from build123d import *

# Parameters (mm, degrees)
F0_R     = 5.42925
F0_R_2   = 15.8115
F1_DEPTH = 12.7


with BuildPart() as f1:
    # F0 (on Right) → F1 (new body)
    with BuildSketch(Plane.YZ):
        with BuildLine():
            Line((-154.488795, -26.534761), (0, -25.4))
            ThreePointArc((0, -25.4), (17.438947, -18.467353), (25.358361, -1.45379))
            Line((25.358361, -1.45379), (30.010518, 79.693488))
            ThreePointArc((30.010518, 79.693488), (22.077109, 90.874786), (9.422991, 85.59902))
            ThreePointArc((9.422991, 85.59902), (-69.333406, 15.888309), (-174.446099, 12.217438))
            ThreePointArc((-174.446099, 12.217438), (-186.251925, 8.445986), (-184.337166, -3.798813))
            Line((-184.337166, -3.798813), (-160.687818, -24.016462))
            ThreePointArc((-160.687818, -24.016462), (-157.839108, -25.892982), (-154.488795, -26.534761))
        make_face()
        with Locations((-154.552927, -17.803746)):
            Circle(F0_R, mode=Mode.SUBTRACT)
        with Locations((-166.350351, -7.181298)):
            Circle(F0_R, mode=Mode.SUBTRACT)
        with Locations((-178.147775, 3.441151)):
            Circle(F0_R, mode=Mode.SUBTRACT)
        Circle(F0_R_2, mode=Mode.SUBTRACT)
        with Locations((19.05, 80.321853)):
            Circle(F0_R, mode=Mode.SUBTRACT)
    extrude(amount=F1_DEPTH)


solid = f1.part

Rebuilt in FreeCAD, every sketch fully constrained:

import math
import FreeCAD as App
import Part
import Sketcher

V = App.Vector
Q = App.Units.Quantity

doc = App.newDocument("Part")
body = doc.addObject("PartDesign::Body", "Body")

# Sketch on YZ plane
sketch1 = body.newObject("Sketcher::SketchObject", "Sketch")
sketch1.AttachmentSupport = (doc.getObject("YZ_Plane"), [""])
sketch1.MapMode = "FlatFace"
sketch1.addGeometry(Part.LineSegment(V(-154.488795, -26.534761, 0), V(0, -25.4, 0)), False)
sketch1.addGeometry(Part.ArcOfCircle(Part.Circle(V(0, -0.000001, 0), V(0, 0, 1), 25.399999), math.radians(-90.000001), math.radians(-3.281163)), False)
sketch1.addGeometry(Part.LineSegment(V(25.358361, -1.45379, 0), V(30.010518, 79.693488, 0)), False)
sketch1.addGeometry(Part.ArcOfCircle(Part.Circle(V(19.05, 80.321852, 0), V(0, 0, 1), 10.978515), math.radians(-3.281164), math.radians(151.270088)), False)
sketch1.addGeometry(Part.ArcOfCircle(Part.Circle(V(-126.999999, 160.381022, 0), V(0, 0, 1), 155.574998), math.radians(-107.756511), math.radians(-28.729912)), False)
sketch1.addGeometry(Part.ArcOfCircle(Part.Circle(V(-178.147775, 3.44115, 0), V(0, 0, 1), 9.525), math.radians(67.130883), math.radians(229.473112)), False)
sketch1.addGeometry(Part.LineSegment(V(-184.337166, -3.798813, 0), V(-160.687818, -24.016462, 0)), False)
sketch1.addGeometry(Part.ArcOfCircle(Part.Circle(V(-154.552924, -17.803741, 0), V(0, 0, 1), 8.731255), math.radians(-134.638869), math.radians(-89.57917)), False)
sketch1.addGeometry(Part.Circle(V(-154.552927, -17.803746, 0), V(0, 0, 1), 5.42925), False)
sketch1.addGeometry(Part.Circle(V(-166.350351, -7.181298, 0), V(0, 0, 1), 5.42925), False)
sketch1.addGeometry(Part.Circle(V(-178.147775, 3.441151, 0), V(0, 0, 1), 5.42925), False)
sketch1.addGeometry(Part.Circle(V(0, 0, 0), V(0, 0, 1), 15.8115), False)
sketch1.addGeometry(Part.Circle(V(19.05, 80.321853, 0), V(0, 0, 1), 5.42925), False)
sketch1.addConstraint(Sketcher.Constraint("Coincident", 0, 2, 1, 1))
sketch1.addConstraint(Sketcher.Constraint("Coincident", 1, 2, 2, 1))
sketch1.addConstraint(Sketcher.Constraint("Coincident", 2, 2, 3, 1))
sketch1.addConstraint(Sketcher.Constraint("Coincident", 3, 2, 4, 2))
sketch1.addConstraint(Sketcher.Constraint("Coincident", 4, 1, 5, 1))
sketch1.addConstraint(Sketcher.Constraint("Coincident", 5, 2, 6, 1))
sketch1.addConstraint(Sketcher.Constraint("Coincident", 6, 2, 7, 1))
sketch1.addConstraint(Sketcher.Constraint("Coincident", 7, 2, 0, 1))
sketch1.addConstraint(Sketcher.Constraint("Coincident", 1, 3, -1, 1))
sketch1.addConstraint(Sketcher.Constraint("Coincident", 11, 3, -1, 1))
sketch1.addConstraint(Sketcher.Constraint("Coincident", 8, 3, 7, 3))
sketch1.addConstraint(Sketcher.Constraint("Coincident", 10, 3, 5, 3))
sketch1.addConstraint(Sketcher.Constraint("Coincident", 12, 3, 3, 3))
sketch1.addConstraint(Sketcher.Constraint("PointOnObject", 0, 2, -2))
sketch1.addConstraint(Sketcher.Constraint("Radius", 1, Q("1 in")))
sketch1.addConstraint(Sketcher.Constraint("Diameter", 11, Q("1.245 in")))
sketch1.addConstraint(Sketcher.Constraint("DistanceX", 4, 3, -1, 1, Q("5 in")))
sketch1.addConstraint(Sketcher.Constraint("Radius", 4, Q("6.1249999 in")))
sketch1.addConstraint(Sketcher.Constraint("Radius", 5, Q("0.375 in")))
sketch1.addConstraint(Sketcher.Constraint("Diameter", 8, Q("0.4275 in")))
sketch1.addConstraint(Sketcher.Constraint("Diameter", 9, Q("0.4275 in")))
sketch1.addConstraint(Sketcher.Constraint("Diameter", 10, Q("0.4275 in")))
sketch1.addConstraint(Sketcher.Constraint("Diameter", 12, Q("0.4275 in")))
sketch1.addConstraint(Sketcher.Constraint("DistanceX", -1, 1, 3, 3, Q("0.75 in")))
sketch1.addConstraint(Sketcher.Constraint("Distance", 0, Q("6.0824001 in")))
sketch1.addConstraint(Sketcher.Constraint("Radius", 3, 10.978515))
sketch1.addConstraint(Sketcher.Constraint("Radius", 7, 8.731255))
sketch1.addConstraint(Sketcher.Constraint("DistanceX", 5, 3, 6, 2, Q("0.6873999 in")))
sketch1.addConstraint(Sketcher.Constraint("DistanceX", 4, 1, -1, 1, 174.446099))
sketch1.addConstraint(Sketcher.Constraint("DistanceY", 8, 3, 3, 3, 98.125598))
sketch1.addConstraint(Sketcher.Constraint("DistanceY", 7, 2, 6, 2, 2.518299))
sketch1.addConstraint(Sketcher.Constraint("Distance", 6, 31.113421))
sketch1.addConstraint(Sketcher.Constraint("DistanceY", -1, 1, 4, 3, 160.381022))
sketch1.addConstraint(Sketcher.Constraint("DistanceY", -1, 1, 5, 3, 3.44115))
sketch1.addConstraint(Sketcher.Constraint("DistanceX", 9, 3, -1, 1, 166.350351))
sketch1.addConstraint(Sketcher.Constraint("DistanceX", -1, 1, 1, 2, 25.358361))
sketch1.addConstraint(Sketcher.Constraint("DistanceX", -1, 1, 2, 2, 30.010518))
sketch1.addConstraint(Sketcher.Constraint("DistanceX", -1, 1, 3, 2, 9.422991))
sketch1.addConstraint(Sketcher.Constraint("DistanceY", 9, 3, 5, 3, 10.622448))
pad1 = body.newObject("PartDesign::Pad", "Pad")
pad1.Profile = sketch1
pad1.Length = Q("0.5 in")

doc.recompute()
